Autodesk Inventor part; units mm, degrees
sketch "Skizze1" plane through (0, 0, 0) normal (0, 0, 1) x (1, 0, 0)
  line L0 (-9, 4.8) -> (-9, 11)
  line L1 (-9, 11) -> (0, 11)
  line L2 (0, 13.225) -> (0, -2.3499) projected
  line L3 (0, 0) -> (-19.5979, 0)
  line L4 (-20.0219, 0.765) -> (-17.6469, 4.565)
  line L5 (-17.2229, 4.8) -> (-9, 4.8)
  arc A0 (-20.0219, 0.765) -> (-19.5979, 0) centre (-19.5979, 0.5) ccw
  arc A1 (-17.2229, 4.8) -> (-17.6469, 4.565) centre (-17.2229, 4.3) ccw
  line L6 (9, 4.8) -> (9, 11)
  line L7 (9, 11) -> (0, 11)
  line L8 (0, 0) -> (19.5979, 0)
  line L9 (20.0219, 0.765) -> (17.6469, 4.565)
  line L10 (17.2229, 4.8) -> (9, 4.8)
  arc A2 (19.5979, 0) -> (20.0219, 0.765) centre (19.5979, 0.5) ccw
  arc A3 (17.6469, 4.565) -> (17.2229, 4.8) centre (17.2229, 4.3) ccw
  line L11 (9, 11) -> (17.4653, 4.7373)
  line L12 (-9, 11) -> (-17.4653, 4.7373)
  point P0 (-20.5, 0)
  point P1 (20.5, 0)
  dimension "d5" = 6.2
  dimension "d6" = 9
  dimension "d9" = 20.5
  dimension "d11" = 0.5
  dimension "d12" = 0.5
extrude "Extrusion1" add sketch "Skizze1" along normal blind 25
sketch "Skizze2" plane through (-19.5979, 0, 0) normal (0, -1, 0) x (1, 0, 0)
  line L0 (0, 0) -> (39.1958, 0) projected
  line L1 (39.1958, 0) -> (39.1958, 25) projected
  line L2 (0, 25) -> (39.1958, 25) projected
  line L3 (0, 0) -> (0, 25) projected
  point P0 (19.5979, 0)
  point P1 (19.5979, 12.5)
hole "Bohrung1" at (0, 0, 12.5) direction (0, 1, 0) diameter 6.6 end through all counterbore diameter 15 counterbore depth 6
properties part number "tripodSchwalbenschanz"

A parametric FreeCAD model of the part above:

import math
import FreeCAD as App
import Part
import Sketcher
from FreeCAD import Vector

doc = App.newDocument("Part")
body = doc.addObject("PartDesign::Body", "Body")

# Sketch on XY plane
sketch1 = body.newObject("Sketcher::SketchObject", "Sketch")
sketch1.AttachmentSupport = (doc.getObject("XY_Plane"), [""])
sketch1.MapMode = "FlatFace"
sketch1.addGeometry(Part.LineSegment(Vector(-9, 11, 0), Vector(-17.47, 4.74, 0)), False)
sketch1.addGeometry(Part.ArcOfCircle(Part.Circle(Vector(-17.22, 4.3, 0), Vector(0, 0, 1), 0.5), math.radians(119), math.radians(148)), False)
sketch1.addGeometry(Part.LineSegment(Vector(-17.65, 4.57, 0), Vector(-20.02, 0.77, 0)), False)
sketch1.addGeometry(Part.ArcOfCircle(Part.Circle(Vector(-19.6, 0.5, 0), Vector(0, 0, 1), 0.5), math.radians(148), math.radians(270)), False)
sketch1.addGeometry(Part.LineSegment(Vector(-19.6, 0, 0), Vector(19.6, 0, 0)), False)
sketch1.addGeometry(Part.ArcOfCircle(Part.Circle(Vector(19.6, 0.5, 0), Vector(0, 0, 1), 0.5), math.radians(-90), math.radians(32)), False)
sketch1.addGeometry(Part.LineSegment(Vector(20.02, 0.77, 0), Vector(17.65, 4.57, 0)), False)
sketch1.addGeometry(Part.ArcOfCircle(Part.Circle(Vector(17.22, 4.3, 0), Vector(0, 0, 1), 0.5), math.radians(32), math.radians(61)), False)
sketch1.addGeometry(Part.LineSegment(Vector(17.47, 4.74, 0), Vector(9, 11, 0)), False)
sketch1.addGeometry(Part.LineSegment(Vector(9, 11, 0), Vector(-9, 11, 0)), False)
sketch1.addConstraint(Sketcher.Constraint("Coincident", 0, 2, 1, 1))
sketch1.addConstraint(Sketcher.Constraint("Tangent", 1, 2, 2, 1))
sketch1.addConstraint(Sketcher.Constraint("Tangent", 2, 2, 3, 1))
sketch1.addConstraint(Sketcher.Constraint("Tangent", 3, 2, 4, 1))
sketch1.addConstraint(Sketcher.Constraint("Tangent", 4, 2, 5, 1))
sketch1.addConstraint(Sketcher.Constraint("Tangent", 5, 2, 6, 1))
sketch1.addConstraint(Sketcher.Constraint("Tangent", 6, 2, 7, 1))
sketch1.addConstraint(Sketcher.Constraint("Coincident", 7, 2, 8, 1))
sketch1.addConstraint(Sketcher.Constraint("Coincident", 8, 2, 9, 1))
sketch1.addConstraint(Sketcher.Constraint("Coincident", 9, 2, 0, 1))
sketch1.addConstraint(Sketcher.Constraint("Horizontal", 4))
sketch1.addConstraint(Sketcher.Constraint("Horizontal", 9))
sketch1.addConstraint(Sketcher.Constraint("Equal", 1, 3))
sketch1.addConstraint(Sketcher.Constraint("Equal", 3, 5))
sketch1.addConstraint(Sketcher.Constraint("Equal", 5, 7))
sketch1.addConstraint(Sketcher.Constraint("Symmetric", 3, 2, 4, 2, -1, 1))
sketch1.addConstraint(Sketcher.Constraint("Symmetric", 1, 3, 7, 3, -2))
sketch1.addConstraint(Sketcher.Constraint("Horizontal", 0, 2, 7, 2))
sketch1.addConstraint(Sketcher.Constraint("Equal", 0, 8))
sketch1.addConstraint(Sketcher.Constraint("Radius", 1, 0.5))
sketch1.addConstraint(Sketcher.Constraint("DistanceX", -1, 1, 8, 2, 9.0))
sketch1.addConstraint(Sketcher.Constraint("DistanceY", -1, 1, 8, 2, 11.0))
sketch1.addConstraint(Sketcher.Constraint("DistanceY", -1, 1, 1, 3, 4.3))
sketch1.addConstraint(Sketcher.Constraint("Distance", 0, 10.53))
sketch1.addConstraint(Sketcher.Constraint("DistanceX", 4, 1, 4, 2, 39.1958))
sketch1.addConstraint(Sketcher.Constraint("DistanceX", 1, 3, -1, 1, 17.223))
pad1 = body.newObject("PartDesign::Pad", "Pad")
pad1.Profile = sketch1
pad1.Length = 25

# Sketch on XZ plane
sketch2 = body.newObject("Sketcher::SketchObject", "Sketch001")
sketch2.AttachmentSupport = (doc.getObject("XZ_Plane"), [""])
sketch2.MapMode = "FlatFace"
sketch2.addGeometry(Part.Circle(Vector(0, 12.5, 0), Vector(0, 0, 1), 3.3), False)
sketch2.addConstraint(Sketcher.Constraint("PointOnObject", 0, 3, -2))
sketch2.addConstraint(Sketcher.Constraint("Diameter", 0, 6.6))
sketch2.addConstraint(Sketcher.Constraint("DistanceY", -1, 1, 0, 3, 12.5))
doc.recompute()
hole = body.newObject("PartDesign::Hole", "Hole")
hole.Profile = sketch2
hole.ThreadType = "None"
hole.Diameter = 6.6
hole.DepthType = "ThroughAll"
hole.HoleCutType = "Counterbore"
hole.HoleCutDiameter = 15
hole.HoleCutDepth = 6

doc.recompute()
